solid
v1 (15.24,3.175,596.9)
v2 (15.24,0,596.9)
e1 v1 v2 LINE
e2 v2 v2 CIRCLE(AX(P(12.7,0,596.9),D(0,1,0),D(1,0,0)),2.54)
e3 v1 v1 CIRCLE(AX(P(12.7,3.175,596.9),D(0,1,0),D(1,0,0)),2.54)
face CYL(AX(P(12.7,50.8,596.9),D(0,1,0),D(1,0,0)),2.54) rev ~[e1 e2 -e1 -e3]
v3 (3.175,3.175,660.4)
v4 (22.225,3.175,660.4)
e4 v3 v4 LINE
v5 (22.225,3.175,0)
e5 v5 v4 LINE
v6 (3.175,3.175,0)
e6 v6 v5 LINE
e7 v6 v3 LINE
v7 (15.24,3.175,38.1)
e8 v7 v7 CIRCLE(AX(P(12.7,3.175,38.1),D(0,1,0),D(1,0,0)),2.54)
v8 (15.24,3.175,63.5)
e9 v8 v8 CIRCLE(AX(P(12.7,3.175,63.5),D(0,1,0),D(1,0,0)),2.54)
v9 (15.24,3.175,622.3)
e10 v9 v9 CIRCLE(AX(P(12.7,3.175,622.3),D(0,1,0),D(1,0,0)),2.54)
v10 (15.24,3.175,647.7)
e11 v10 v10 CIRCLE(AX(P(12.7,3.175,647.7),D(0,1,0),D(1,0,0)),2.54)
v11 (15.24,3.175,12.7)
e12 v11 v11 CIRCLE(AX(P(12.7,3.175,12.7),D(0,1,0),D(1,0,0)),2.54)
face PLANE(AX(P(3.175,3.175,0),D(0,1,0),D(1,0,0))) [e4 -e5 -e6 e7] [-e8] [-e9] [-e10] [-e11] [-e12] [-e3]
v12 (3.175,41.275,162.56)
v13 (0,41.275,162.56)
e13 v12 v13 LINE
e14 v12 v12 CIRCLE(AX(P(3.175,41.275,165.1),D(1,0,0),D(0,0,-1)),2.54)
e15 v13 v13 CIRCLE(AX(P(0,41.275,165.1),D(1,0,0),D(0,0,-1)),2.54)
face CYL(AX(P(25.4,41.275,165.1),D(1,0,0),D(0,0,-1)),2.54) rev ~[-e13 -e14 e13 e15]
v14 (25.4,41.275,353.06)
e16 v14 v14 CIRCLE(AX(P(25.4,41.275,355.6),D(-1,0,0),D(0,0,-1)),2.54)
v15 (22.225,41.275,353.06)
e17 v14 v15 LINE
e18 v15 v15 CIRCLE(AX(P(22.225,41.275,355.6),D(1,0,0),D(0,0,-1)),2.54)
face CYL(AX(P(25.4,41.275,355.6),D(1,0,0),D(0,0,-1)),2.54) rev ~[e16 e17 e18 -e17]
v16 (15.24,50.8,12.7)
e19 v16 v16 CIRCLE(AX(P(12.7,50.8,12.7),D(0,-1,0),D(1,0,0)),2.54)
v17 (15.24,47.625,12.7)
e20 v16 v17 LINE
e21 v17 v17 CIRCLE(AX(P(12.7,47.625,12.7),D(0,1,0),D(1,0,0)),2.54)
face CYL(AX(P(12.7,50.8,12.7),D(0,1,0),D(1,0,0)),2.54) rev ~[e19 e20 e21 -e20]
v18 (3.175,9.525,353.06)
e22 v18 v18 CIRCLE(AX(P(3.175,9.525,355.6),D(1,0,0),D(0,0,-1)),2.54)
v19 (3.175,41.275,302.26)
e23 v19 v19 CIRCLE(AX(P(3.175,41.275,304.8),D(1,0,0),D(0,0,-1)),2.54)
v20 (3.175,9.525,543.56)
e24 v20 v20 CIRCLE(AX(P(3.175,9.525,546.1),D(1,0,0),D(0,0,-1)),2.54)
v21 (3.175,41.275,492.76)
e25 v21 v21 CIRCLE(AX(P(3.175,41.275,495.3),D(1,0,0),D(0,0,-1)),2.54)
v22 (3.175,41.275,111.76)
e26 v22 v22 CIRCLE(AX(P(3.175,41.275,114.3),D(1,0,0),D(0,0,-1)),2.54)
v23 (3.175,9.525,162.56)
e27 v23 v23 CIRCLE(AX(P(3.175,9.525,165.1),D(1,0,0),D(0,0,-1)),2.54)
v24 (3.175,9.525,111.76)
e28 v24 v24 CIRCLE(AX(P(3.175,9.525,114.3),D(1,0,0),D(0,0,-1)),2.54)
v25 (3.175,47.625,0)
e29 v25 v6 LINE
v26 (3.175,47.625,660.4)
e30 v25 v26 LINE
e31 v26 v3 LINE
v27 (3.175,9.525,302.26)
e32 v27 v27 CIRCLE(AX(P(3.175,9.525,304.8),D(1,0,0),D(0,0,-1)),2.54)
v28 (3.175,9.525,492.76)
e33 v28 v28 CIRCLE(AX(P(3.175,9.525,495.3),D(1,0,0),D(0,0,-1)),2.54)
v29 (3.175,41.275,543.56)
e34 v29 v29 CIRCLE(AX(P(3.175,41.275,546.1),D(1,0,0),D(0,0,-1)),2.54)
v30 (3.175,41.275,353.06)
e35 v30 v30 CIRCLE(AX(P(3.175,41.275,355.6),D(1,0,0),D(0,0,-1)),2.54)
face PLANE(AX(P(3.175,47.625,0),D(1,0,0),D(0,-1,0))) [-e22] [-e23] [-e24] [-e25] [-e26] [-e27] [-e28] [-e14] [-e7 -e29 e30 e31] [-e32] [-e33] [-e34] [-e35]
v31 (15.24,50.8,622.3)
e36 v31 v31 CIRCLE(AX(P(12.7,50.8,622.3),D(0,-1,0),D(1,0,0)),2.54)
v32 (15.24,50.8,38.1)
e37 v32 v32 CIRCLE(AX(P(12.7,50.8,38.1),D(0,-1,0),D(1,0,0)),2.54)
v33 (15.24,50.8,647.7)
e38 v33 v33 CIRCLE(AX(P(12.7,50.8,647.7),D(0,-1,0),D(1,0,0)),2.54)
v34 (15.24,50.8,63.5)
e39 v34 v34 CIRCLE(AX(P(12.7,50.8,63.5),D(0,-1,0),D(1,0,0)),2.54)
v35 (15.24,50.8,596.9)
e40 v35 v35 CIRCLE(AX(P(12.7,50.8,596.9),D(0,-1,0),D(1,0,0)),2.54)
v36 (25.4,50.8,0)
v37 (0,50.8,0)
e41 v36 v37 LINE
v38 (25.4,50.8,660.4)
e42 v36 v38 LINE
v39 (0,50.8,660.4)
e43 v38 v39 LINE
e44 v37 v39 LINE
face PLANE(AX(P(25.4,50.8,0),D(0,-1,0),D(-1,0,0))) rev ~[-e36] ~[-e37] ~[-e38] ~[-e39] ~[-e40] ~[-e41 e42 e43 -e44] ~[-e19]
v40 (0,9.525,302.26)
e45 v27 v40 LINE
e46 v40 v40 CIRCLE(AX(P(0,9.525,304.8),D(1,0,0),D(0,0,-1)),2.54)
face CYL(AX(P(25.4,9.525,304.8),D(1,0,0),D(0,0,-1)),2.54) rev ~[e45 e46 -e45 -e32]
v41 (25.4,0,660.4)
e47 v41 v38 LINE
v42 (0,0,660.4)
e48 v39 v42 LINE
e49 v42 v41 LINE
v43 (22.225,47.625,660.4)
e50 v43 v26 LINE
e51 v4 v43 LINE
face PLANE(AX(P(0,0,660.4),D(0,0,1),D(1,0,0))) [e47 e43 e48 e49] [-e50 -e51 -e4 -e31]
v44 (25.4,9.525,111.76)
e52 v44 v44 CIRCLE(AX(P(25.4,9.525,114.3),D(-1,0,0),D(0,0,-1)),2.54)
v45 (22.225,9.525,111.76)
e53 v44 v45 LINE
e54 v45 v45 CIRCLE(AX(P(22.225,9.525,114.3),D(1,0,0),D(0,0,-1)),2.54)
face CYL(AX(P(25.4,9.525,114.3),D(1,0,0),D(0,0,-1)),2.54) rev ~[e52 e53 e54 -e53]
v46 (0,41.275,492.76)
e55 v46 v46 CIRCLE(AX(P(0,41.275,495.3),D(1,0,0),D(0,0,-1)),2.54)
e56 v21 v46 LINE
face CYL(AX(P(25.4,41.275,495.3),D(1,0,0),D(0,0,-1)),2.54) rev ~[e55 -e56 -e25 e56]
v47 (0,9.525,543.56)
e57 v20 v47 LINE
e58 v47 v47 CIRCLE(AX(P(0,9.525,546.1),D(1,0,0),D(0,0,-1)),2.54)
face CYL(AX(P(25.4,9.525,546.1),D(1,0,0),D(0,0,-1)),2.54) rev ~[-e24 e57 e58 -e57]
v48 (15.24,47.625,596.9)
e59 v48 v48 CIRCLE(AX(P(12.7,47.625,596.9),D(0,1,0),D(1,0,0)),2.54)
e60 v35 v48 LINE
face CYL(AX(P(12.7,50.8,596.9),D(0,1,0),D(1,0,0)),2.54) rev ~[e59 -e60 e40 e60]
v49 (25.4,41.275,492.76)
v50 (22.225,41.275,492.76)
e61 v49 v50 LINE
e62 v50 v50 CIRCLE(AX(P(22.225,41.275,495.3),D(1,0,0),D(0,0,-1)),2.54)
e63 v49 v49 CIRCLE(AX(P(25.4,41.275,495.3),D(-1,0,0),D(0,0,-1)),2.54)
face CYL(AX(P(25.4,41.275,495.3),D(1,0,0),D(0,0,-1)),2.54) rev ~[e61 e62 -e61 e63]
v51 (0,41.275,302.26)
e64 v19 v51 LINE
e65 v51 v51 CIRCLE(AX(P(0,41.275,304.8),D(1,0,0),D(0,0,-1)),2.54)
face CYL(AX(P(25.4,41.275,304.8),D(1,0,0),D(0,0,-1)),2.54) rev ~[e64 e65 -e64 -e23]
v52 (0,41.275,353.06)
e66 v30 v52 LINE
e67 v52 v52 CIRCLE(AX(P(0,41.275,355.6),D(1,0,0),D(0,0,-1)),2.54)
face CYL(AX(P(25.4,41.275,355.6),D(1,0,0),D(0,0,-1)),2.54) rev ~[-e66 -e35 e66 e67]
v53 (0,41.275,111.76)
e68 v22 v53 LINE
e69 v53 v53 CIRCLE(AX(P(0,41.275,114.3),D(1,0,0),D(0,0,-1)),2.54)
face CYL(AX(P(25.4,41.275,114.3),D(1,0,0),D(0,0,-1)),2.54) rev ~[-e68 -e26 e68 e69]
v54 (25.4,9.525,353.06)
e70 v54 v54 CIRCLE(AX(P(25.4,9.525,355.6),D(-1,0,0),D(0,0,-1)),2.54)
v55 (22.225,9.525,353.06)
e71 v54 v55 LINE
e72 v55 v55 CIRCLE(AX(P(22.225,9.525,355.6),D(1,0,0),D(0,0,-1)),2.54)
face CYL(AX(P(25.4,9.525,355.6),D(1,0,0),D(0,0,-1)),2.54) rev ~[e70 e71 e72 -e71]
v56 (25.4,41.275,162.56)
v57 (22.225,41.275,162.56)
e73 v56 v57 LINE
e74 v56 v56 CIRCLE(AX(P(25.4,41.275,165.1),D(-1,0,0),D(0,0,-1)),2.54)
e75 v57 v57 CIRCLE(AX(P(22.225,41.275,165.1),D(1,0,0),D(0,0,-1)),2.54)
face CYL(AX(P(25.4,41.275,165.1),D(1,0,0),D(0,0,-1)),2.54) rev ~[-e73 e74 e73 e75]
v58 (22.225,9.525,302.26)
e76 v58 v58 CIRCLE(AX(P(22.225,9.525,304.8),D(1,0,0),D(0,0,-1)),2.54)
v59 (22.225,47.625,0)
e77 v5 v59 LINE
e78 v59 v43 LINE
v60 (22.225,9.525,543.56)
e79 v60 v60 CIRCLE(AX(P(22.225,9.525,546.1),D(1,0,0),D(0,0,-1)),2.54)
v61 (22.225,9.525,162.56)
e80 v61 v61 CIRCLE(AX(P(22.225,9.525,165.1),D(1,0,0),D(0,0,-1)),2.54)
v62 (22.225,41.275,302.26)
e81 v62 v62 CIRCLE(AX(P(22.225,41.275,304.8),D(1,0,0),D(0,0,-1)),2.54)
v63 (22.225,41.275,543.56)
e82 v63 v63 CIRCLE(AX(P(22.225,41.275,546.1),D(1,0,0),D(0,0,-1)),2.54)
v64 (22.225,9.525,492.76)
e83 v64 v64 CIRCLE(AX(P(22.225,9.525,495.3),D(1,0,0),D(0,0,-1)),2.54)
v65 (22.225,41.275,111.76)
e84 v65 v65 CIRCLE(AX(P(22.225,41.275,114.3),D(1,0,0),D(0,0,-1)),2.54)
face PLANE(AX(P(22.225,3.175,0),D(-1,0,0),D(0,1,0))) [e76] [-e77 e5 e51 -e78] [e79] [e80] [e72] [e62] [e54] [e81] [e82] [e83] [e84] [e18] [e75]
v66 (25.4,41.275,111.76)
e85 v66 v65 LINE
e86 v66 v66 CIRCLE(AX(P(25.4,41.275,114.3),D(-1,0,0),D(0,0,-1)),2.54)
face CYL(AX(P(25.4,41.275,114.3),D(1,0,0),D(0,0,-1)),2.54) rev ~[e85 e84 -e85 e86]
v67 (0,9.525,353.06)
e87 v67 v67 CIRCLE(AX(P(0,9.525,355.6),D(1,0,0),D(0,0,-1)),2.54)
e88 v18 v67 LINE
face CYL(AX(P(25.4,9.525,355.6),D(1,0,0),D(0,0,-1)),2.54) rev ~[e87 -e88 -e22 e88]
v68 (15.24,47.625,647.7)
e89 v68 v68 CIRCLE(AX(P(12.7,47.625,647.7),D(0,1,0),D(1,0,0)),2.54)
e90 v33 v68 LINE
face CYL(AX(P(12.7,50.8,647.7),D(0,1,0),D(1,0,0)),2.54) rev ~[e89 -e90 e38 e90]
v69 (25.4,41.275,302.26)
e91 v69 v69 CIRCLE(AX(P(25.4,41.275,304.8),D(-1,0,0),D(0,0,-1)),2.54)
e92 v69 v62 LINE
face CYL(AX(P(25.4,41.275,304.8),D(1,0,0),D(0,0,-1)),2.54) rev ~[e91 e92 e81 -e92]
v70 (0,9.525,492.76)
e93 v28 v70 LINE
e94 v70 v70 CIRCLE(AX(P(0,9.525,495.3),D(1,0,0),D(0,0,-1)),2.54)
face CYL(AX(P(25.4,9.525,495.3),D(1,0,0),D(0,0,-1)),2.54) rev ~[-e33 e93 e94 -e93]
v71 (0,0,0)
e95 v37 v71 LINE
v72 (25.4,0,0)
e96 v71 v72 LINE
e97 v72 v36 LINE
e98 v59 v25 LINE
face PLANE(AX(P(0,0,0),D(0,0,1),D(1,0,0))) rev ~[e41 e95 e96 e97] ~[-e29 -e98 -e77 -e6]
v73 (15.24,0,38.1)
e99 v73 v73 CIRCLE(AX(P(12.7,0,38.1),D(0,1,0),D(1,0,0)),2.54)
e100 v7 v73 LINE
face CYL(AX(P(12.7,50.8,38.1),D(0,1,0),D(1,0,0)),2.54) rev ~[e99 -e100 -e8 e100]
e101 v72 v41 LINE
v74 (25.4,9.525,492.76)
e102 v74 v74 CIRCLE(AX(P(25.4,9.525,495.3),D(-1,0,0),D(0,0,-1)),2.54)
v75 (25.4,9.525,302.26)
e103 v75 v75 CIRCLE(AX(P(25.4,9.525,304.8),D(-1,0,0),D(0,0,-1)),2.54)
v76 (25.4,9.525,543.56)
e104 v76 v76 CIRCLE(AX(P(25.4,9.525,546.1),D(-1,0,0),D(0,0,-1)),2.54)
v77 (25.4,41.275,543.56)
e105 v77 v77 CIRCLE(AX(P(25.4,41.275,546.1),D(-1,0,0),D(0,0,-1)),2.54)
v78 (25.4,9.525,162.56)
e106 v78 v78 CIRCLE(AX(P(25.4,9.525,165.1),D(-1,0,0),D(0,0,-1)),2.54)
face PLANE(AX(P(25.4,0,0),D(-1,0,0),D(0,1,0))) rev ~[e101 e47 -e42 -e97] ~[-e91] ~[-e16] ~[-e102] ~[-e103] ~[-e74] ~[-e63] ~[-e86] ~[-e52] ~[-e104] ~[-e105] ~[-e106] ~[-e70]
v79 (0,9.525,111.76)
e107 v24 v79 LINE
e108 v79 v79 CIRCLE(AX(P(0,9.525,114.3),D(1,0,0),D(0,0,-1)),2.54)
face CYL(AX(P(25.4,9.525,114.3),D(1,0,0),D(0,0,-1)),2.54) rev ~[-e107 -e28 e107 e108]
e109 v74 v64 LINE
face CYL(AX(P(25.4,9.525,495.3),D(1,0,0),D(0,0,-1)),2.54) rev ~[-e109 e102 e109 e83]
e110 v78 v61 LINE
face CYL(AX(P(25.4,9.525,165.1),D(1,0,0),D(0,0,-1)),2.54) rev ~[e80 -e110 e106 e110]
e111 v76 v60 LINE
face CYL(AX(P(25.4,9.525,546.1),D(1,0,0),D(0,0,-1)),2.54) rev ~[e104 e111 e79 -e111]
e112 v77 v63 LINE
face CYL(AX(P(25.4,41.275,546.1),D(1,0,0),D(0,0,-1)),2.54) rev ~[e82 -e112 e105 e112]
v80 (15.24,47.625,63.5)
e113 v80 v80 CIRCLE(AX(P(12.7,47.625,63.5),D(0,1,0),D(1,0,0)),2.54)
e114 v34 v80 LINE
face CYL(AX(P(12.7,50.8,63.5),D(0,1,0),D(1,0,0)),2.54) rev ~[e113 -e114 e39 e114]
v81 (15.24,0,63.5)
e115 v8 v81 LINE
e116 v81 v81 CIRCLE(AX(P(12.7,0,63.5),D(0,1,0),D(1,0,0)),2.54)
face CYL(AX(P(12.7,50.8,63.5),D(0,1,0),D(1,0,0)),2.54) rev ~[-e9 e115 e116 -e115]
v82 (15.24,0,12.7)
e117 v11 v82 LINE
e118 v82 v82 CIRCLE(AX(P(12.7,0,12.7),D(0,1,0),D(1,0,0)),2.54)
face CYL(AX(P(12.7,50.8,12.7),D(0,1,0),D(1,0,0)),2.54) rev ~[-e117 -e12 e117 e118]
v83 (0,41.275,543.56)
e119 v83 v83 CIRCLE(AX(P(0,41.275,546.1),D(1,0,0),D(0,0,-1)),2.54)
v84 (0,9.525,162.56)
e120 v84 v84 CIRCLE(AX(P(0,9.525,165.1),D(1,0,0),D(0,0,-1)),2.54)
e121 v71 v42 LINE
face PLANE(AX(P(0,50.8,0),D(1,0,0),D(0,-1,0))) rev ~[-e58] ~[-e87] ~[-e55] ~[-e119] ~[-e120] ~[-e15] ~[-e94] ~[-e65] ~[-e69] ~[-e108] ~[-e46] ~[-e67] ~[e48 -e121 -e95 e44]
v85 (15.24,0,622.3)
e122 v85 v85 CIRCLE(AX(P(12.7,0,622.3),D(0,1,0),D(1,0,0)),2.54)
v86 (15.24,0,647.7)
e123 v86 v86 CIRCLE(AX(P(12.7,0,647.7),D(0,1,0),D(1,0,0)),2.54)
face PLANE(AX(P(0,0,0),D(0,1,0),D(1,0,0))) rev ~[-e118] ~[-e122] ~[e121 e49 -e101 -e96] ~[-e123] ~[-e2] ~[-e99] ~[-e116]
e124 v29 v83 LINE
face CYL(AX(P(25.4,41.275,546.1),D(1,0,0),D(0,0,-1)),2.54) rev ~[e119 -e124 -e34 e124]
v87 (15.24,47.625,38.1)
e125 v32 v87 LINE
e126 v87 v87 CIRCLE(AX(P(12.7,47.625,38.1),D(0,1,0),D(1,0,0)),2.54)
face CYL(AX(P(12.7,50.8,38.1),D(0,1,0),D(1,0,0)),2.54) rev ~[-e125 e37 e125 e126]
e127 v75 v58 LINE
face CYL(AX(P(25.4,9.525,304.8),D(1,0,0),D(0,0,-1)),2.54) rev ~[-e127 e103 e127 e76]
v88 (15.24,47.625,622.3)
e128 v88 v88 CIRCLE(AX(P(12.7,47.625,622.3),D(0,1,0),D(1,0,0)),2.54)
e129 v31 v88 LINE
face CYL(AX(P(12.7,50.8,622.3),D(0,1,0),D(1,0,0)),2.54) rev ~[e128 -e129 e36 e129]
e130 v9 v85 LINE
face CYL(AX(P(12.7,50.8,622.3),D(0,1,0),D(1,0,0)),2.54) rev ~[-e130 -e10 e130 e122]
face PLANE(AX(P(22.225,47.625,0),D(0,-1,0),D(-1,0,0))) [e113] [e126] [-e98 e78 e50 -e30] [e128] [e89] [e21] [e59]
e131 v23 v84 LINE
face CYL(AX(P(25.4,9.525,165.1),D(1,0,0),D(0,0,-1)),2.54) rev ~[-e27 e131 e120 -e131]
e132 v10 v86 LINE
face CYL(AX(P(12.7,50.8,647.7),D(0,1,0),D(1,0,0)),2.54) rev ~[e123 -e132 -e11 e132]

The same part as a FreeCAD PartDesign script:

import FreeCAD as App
import Part
import Sketcher

V = App.Vector
Q = App.Units.Quantity


def add_polygon(sketch, points):
    """Adds a closed chain of lines whose ends are joined by coincident constraints."""
    first, n = sketch.GeometryCount, len(points)
    for a, b in zip(points, points[1:] + points[:1]):
        sketch.addGeometry(Part.LineSegment(App.Vector(*a, 0), App.Vector(*b, 0)), False)
    for i in range(n):
        sketch.addConstraint(Sketcher.Constraint("Coincident", first + i, 2, first + (i + 1) % n, 1))

doc = App.newDocument("Part")
body = doc.addObject("PartDesign::Body", "Body")

sketch1 = body.newObject("Sketcher::SketchObject", "Sketch")
sketch1.AttachmentSupport = (doc.getObject("XY_Plane"), [""])
sketch1.MapMode = "FlatFace"
add_polygon(sketch1, [(0, 51), (0, 0), (25, 0), (25, 51)])
add_polygon(sketch1, [(22, 3), (3, 3), (3, 48), (22, 48)])
sketch1.addConstraint([
    Sketcher.Constraint("Vertical", 0),
    Sketcher.Constraint("Horizontal", 1),
    Sketcher.Constraint("Vertical", 2),
    Sketcher.Constraint("Horizontal", 3),
    Sketcher.Constraint("Horizontal", 4),
    Sketcher.Constraint("Vertical", 5),
    Sketcher.Constraint("Horizontal", 6),
    Sketcher.Constraint("Vertical", 7),
    Sketcher.Constraint("Coincident", 0, 2, -1, 1),
    Sketcher.Constraint("DistanceX", 1, 1, 1, 2, Q("1 in")),
    Sketcher.Constraint("DistanceY", 0, 2, 0, 1, Q("2 in")),
    Sketcher.Constraint("DistanceX", -1, 1, 4, 2, Q("0.125 in")),
    Sketcher.Constraint("DistanceY", -1, 1, 4, 2, Q("0.125 in")),
    Sketcher.Constraint("DistanceY", 5, 2, 3, 2, Q("0.125 in")),
    Sketcher.Constraint("DistanceX", 6, 2, 2, 2, Q("0.125 in")),
])
pad1 = body.newObject("PartDesign::Pad", "Pad")
pad1.Profile = sketch1
pad1.Length = Q("26 in")

sketch2 = body.newObject("Sketcher::SketchObject", "Sketch001")
sketch2.AttachmentSupport = (doc.getObject("XZ_Plane"), [""])
sketch2.MapMode = "FlatFace"
sketch2.AttachmentOffset = App.Placement(V(0, 0, -2 * 25.4), App.Rotation())
sketch2.addGeometry([
    Part.Circle(V(12.7, 12.7, 0), V(0, 0, 1), 2.5),
    Part.Circle(V(12.7, 647.7, 0), V(0, 0, 1), 2.5),
    Part.Circle(V(12.7, 622.3, 0), V(0, 0, 1), 2.5),
    Part.Circle(V(12.7, 596.9, 0), V(0, 0, 1), 2.5),
    Part.Circle(V(12.7, 63.5, 0), V(0, 0, 1), 2.5),
    Part.Circle(V(12.7, 38.1, 0), V(0, 0, 1), 2.5),
], False)
sketch2.addConstraint([
    Sketcher.Constraint("Equal", 0, 1),
    Sketcher.Constraint("Equal", 1, 2),
    Sketcher.Constraint("Equal", 2, 3),
    Sketcher.Constraint("Equal", 3, 4),
    Sketcher.Constraint("Equal", 4, 5),
    Sketcher.Constraint("Vertical", 0, 3, 1, 3),
    Sketcher.Constraint("Vertical", 1, 3, 2, 3),
    Sketcher.Constraint("Vertical", 2, 3, 3, 3),
    Sketcher.Constraint("Vertical", 3, 3, 4, 3),
    Sketcher.Constraint("Vertical", 4, 3, 5, 3),
    Sketcher.Constraint("Diameter", 0, Q("0.2 in")),
    Sketcher.Constraint("DistanceY", 2, 3, 1, 3, Q("1 in")),
    Sketcher.Constraint("DistanceY", 3, 3, 2, 3, Q("1 in")),
    Sketcher.Constraint("DistanceY", 5, 3, 4, 3, Q("1 in")),
    Sketcher.Constraint("DistanceY", 0, 3, 5, 3, Q("1 in")),
    Sketcher.Constraint("DistanceX", -1, 1, 0, 3, Q("0.5 in")),
    Sketcher.Constraint("DistanceY", -1, 1, 0, 3, Q("0.5 in")),
    Sketcher.Constraint("DistanceY", 0, 3, 1, 3, Q("25 in")),
])
pocket1 = body.newObject("PartDesign::Pocket", "Pocket")
pocket1.Profile = sketch2
pocket1.Length = Q("26 in")
pocket1.Reversed = True

sketch3 = body.newObject("Sketcher::SketchObject", "Sketch002")
sketch3.AttachmentSupport = (doc.getObject("YZ_Plane"), [""])
sketch3.MapMode = "FlatFace"
sketch3.AttachmentOffset = App.Placement(V(0, 0, 1 * 25.4), App.Rotation())
sketch3.addGeometry([
    Part.Circle(V(41.3, 165.1, 0), V(0, 0, 1), 2.5),
    Part.Circle(V(41.3, 114.3, 0), V(0, 0, 1), 2.5),
    Part.Circle(V(9.5, 165.1, 0), V(0, 0, 1), 2.5),
    Part.Circle(V(9.5, 114.3, 0), V(0, 0, 1), 2.5),
], False)
sketch3.addConstraint([
    Sketcher.Constraint("Equal", 0, 1),
    Sketcher.Constraint("Equal", 1, 2),
    Sketcher.Constraint("Equal", 2, 3),
    Sketcher.Constraint("Horizontal", 0, 3, 2, 3),
    Sketcher.Constraint("Horizontal", 1, 3, 3, 3),
    Sketcher.Constraint("Vertical", 0, 3, 1, 3),
    Sketcher.Constraint("Vertical", 2, 3, 3, 3),
    Sketcher.Constraint("Diameter", 0, Q("0.2 in")),
    Sketcher.Constraint("DistanceY", 1, 3, 0, 3, Q("2 in")),
    Sketcher.Constraint("DistanceY", -1, 1, 1, 3, Q("4.5 in")),
    Sketcher.Constraint("DistanceX", -1, 1, 2, 3, Q("0.375 in")),
    Sketcher.Constraint("DistanceX", 2, 3, 0, 3, Q("1.25 in")),
])
pocket2 = body.newObject("PartDesign::Pocket", "Pocket001")
pocket2.Profile = sketch3
pocket2.Length = Q("26 in")

sketch4 = body.newObject("Sketcher::SketchObject", "Sketch003")
sketch4.AttachmentSupport = (doc.getObject("YZ_Plane"), [""])
sketch4.MapMode = "FlatFace"
sketch4.AttachmentOffset = App.Placement(V(0, 0, 1 * 25.4), App.Rotation())
sketch4.addGeometry([
    Part.Circle(V(9.5, 304.8, 0), V(0, 0, 1), 2.5),
    Part.Circle(V(9.5, 355.6, 0), V(0, 0, 1), 2.5),
    Part.Circle(V(41.3, 355.6, 0), V(0, 0, 1), 2.5),
    Part.Circle(V(41.3, 304.8, 0), V(0, 0, 1), 2.5),
], False)
sketch4.addConstraint([
    Sketcher.Constraint("Equal", 0, 1),
    Sketcher.Constraint("Equal", 1, 2),
    Sketcher.Constraint("Equal", 2, 3),
    Sketcher.Constraint("Horizontal", 1, 3, 2, 3),
    Sketcher.Constraint("Horizontal", 0, 3, 3, 3),
    Sketcher.Constraint("Vertical", 0, 3, 1, 3),
    Sketcher.Constraint("Vertical", 2, 3, 3, 3),
    Sketcher.Constraint("DistanceY", 0, 3, 1, 3, Q("2 in")),
    Sketcher.Constraint("Diameter", 0, Q("0.2 in")),
    Sketcher.Constraint("DistanceY", -1, 1, 0, 3, Q("12 in")),
    Sketcher.Constraint("DistanceX", 1, 3, 2, 3, Q("1.25 in")),
    Sketcher.Constraint("DistanceX", -1, 1, 0, 3, Q("0.375 in")),
])
pocket3 = body.newObject("PartDesign::Pocket", "Pocket002")
pocket3.Profile = sketch4
pocket3.Length = Q("26 in")

sketch5 = body.newObject("Sketcher::SketchObject", "Sketch004")
sketch5.AttachmentSupport = (doc.getObject("YZ_Plane"), [""])
sketch5.MapMode = "FlatFace"
sketch5.AttachmentOffset = App.Placement(V(0, 0, 1 * 25.4), App.Rotation())
sketch5.addGeometry([
    Part.Circle(V(9.5, 495.3, 0), V(0, 0, 1), 2.5),
    Part.Circle(V(9.5, 546.1, 0), V(0, 0, 1), 2.5),
    Part.Circle(V(41.3, 546.1, 0), V(0, 0, 1), 2.5),
    Part.Circle(V(41.3, 495.3, 0), V(0, 0, 1), 2.5),
], False)
sketch5.addConstraint([
    Sketcher.Constraint("Equal", 0, 1),
    Sketcher.Constraint("Equal", 1, 2),
    Sketcher.Constraint("Equal", 2, 3),
    Sketcher.Constraint("Horizontal", 1, 3, 2, 3),
    Sketcher.Constraint("Horizontal", 0, 3, 3, 3),
    Sketcher.Constraint("Vertical", 0, 3, 1, 3),
    Sketcher.Constraint("Vertical", 2, 3, 3, 3),
    Sketcher.Constraint("DistanceY", 0, 3, 1, 3, Q("2 in")),
    Sketcher.Constraint("Diameter", 0, Q("0.2 in")),
    Sketcher.Constraint("DistanceY", -1, 1, 0, 3, Q("19.5 in")),
    Sketcher.Constraint("DistanceX", 1, 3, 2, 3, Q("1.25 in")),
    Sketcher.Constraint("DistanceX", -1, 1, 0, 3, Q("0.375 in")),
])
pocket4 = body.newObject("PartDesign::Pocket", "Pocket003")
pocket4.Profile = sketch5
pocket4.Length = Q("26 in")

doc.recompute()
